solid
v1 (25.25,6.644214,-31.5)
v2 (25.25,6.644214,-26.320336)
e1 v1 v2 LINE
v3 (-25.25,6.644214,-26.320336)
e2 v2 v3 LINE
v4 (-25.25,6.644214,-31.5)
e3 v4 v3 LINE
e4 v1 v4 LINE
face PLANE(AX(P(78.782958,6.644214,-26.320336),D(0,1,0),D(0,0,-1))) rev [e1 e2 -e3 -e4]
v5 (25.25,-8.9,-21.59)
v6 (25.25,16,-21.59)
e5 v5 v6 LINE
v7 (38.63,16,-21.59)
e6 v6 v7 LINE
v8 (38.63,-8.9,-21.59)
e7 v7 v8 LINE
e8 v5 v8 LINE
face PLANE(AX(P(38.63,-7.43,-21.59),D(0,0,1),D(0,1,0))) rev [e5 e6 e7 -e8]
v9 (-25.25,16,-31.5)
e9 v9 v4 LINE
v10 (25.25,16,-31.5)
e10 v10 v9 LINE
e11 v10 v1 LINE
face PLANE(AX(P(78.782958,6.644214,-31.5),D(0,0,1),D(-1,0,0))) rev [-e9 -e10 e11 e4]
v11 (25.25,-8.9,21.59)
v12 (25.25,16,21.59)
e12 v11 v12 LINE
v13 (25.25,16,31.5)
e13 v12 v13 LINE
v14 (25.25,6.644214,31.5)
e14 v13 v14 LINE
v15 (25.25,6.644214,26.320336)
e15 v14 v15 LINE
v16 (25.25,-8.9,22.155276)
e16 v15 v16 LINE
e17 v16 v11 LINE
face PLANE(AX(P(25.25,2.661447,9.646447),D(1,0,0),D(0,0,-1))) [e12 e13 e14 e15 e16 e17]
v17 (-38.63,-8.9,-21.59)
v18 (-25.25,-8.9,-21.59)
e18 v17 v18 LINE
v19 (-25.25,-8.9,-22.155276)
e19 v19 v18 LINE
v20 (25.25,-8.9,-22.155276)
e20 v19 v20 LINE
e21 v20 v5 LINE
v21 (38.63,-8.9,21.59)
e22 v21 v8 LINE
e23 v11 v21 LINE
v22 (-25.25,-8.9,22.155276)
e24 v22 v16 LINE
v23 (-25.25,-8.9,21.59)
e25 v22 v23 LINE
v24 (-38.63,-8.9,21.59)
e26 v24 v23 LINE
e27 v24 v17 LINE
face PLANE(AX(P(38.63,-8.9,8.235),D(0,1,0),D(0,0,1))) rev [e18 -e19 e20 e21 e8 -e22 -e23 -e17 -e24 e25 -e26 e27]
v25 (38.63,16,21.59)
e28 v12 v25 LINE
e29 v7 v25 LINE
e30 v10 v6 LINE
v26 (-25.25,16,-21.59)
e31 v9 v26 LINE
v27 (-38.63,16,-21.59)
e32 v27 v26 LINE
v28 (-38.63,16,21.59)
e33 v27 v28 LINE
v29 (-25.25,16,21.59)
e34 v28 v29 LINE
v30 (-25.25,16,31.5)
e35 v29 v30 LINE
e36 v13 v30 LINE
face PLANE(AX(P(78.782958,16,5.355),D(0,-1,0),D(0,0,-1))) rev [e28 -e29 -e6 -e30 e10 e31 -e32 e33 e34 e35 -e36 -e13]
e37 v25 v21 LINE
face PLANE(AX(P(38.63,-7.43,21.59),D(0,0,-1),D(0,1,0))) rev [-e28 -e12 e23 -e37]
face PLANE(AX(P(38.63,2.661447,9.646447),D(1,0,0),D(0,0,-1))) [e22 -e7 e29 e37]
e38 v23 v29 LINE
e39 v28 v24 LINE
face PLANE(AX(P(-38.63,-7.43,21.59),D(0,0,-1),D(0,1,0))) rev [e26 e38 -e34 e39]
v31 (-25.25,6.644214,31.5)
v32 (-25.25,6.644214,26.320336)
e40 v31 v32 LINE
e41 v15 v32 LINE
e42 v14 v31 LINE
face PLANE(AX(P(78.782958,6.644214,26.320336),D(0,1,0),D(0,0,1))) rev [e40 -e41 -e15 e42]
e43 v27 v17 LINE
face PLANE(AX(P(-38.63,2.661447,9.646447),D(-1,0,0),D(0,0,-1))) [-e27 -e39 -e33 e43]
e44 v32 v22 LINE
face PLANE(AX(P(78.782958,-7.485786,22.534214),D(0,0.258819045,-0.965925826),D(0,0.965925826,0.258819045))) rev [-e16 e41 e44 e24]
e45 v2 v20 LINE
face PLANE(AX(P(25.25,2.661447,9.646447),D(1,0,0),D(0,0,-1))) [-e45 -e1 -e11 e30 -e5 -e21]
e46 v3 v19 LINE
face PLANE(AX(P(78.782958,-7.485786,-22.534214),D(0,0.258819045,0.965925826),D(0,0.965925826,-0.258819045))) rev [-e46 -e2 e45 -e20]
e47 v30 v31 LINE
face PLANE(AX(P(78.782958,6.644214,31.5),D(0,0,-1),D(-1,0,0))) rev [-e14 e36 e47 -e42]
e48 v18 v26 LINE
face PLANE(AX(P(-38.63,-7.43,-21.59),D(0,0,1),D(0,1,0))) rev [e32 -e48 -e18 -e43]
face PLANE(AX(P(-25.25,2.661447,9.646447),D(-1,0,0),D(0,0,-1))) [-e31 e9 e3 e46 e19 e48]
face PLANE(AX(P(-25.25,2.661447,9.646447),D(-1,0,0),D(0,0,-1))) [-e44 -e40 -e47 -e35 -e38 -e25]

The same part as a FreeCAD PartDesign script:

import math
import FreeCAD as App
import Part
import Sketcher
Q = App.Units.Quantity


def add_polygon(sketch, points):
    """Adds a closed chain of lines whose ends are joined by coincident constraints."""
    first, n = sketch.GeometryCount, len(points)
    for a, b in zip(points, points[1:] + points[:1]):
        sketch.addGeometry(Part.LineSegment(App.Vector(*a, 0), App.Vector(*b, 0)), False)
    for i in range(n):
        sketch.addConstraint(Sketcher.Constraint("Coincident", first + i, 2, first + (i + 1) % n, 1))

doc = App.newDocument("Part")
body = doc.addObject("PartDesign::Body", "Body")

sketch1 = body.newObject("Sketcher::SketchObject", "Sketch")
sketch1.AttachmentSupport = (doc.getObject("YZ_Plane"), [""])
sketch1.MapMode = "FlatFace"
sketch1.addGeometry([
    Part.LineSegment(App.Vector(-8.9, 20.1, 0), App.Vector(-8.9, 8.2, 0)),
    Part.LineSegment(App.Vector(-8.9, 8.2, 0), App.Vector(-7.2, 6.5, 0)),
    Part.LineSegment(App.Vector(-7.2, 6.5, 0), App.Vector(-4.2, 6.5, 0)),
    Part.LineSegment(App.Vector(-4.2, 6.5, 0), App.Vector(-2.7, 8, 0)),
    Part.ArcOfCircle(Part.Circle(App.Vector(-2.7, 9.6, 0), App.Vector(0, 0, 1), 1.6), math.radians(-90), math.radians(0)),
    Part.LineSegment(App.Vector(-1, 9.6, 0), App.Vector(-0.7, 10, 0)),
    Part.LineSegment(App.Vector(-0.7, 10, 0), App.Vector(0.7, 10, 0)),
    Part.LineSegment(App.Vector(0.7, 10, 0), App.Vector(1, 9.6, 0)),
    Part.ArcOfCircle(Part.Circle(App.Vector(2.7, 9.6, 0), App.Vector(0, 0, 1), 1.6), math.radians(-180), math.radians(-90)),
    Part.LineSegment(App.Vector(2.7, 8, 0), App.Vector(3, 7.7, 0)),
    Part.LineSegment(App.Vector(3, 7.7, 0), App.Vector(3, 0, 0)),
    Part.LineSegment(App.Vector(3, 0, 0), App.Vector(15.5, 0, 0)),
    Part.LineSegment(App.Vector(15.5, 0, 0), App.Vector(15.5, 20.1, 0)),
    Part.LineSegment(App.Vector(15.5, 20.1, 0), App.Vector(14, 21.6, 0)),
    Part.LineSegment(App.Vector(14, 21.6, 0), App.Vector(-7.4, 21.6, 0)),
    Part.LineSegment(App.Vector(-7.4, 21.6, 0), App.Vector(-8.9, 20.1, 0)),
], False)
sketch1.addConstraint([
    Sketcher.Constraint("Coincident", 0, 2, 1, 1),
    Sketcher.Constraint("Coincident", 1, 2, 2, 1),
    Sketcher.Constraint("Coincident", 2, 2, 3, 1),
    Sketcher.Constraint("Coincident", 3, 2, 4, 1),
    Sketcher.Constraint("Coincident", 4, 2, 5, 1),
    Sketcher.Constraint("Coincident", 5, 2, 6, 1),
    Sketcher.Constraint("Coincident", 6, 2, 7, 1),
    Sketcher.Constraint("Coincident", 7, 2, 8, 1),
    Sketcher.Constraint("Coincident", 8, 2, 9, 1),
    Sketcher.Constraint("Coincident", 9, 2, 10, 1),
    Sketcher.Constraint("Coincident", 10, 2, 11, 1),
    Sketcher.Constraint("Coincident", 11, 2, 12, 1),
    Sketcher.Constraint("Coincident", 12, 2, 13, 1),
    Sketcher.Constraint("Coincident", 13, 2, 14, 1),
    Sketcher.Constraint("Coincident", 14, 2, 15, 1),
    Sketcher.Constraint("Coincident", 15, 2, 0, 1),
    Sketcher.Constraint("Vertical", 0),
    Sketcher.Constraint("Horizontal", 2),
    Sketcher.Constraint("Horizontal", 6),
    Sketcher.Constraint("Vertical", 10),
    Sketcher.Constraint("Horizontal", 11),
    Sketcher.Constraint("Vertical", 12),
    Sketcher.Constraint("Horizontal", 14),
    Sketcher.Constraint("Equal", 4, 8),
    Sketcher.Constraint("Symmetric", 4, 3, 8, 3, -2),
    Sketcher.Constraint("PointOnObject", 10, 2, -1),
    Sketcher.Constraint("Perpendicular", 1, 3),
    Sketcher.Constraint("Parallel", 3, 5),
    Sketcher.Constraint("Perpendicular", 5, 7),
    Sketcher.Constraint("Parallel", 7, 9),
    Sketcher.Constraint("Parallel", 9, 13),
    Sketcher.Constraint("Perpendicular", 13, 15),
    Sketcher.Constraint("Horizontal", 8, 3, 4, 2),
    Sketcher.Constraint("Horizontal", 4, 2, 7, 2),
    Sketcher.Constraint("Horizontal", 12, 2, 15, 2),
    Sketcher.Constraint("Vertical", 4, 3, 3, 2),
    Sketcher.Constraint("Equal", 5, 7),
    Sketcher.Constraint("Equal", 7, 9),
    Sketcher.Constraint("DistanceX", 2, 1, 2, 2, Q("3 mm")),
    Sketcher.Constraint("DistanceY", -1, 1, 5, 2, Q("10 mm")),
    Sketcher.Constraint("Distance", 5, Q("0.5 mm")),
    Sketcher.Constraint("DistanceX", 6, 1, 6, 2, Q("1.33 mm")),
    Sketcher.Constraint("DistanceX", 14, 2, 14, 1, Q("21.46 mm")),
    Sketcher.Constraint("DistanceY", 10, 2, 10, 1, Q("7.65 mm")),
    Sketcher.Constraint("DistanceY", 12, 1, 12, 2, Q("20.12 mm")),
    Sketcher.Constraint("DistanceX", 0, 2, -1, 1, Q("8.9 mm")),
    Sketcher.Constraint("DistanceY", -1, 1, 1, 2, Q("6.5 mm")),
    Sketcher.Constraint("DistanceX", -1, 1, 11, 2, Q("15.5 mm")),
    Sketcher.Constraint("DistanceX", 11, 1, 11, 2, Q("12.485 mm")),
])
pad1 = body.newObject("PartDesign::Pad", "Pad")
pad1.Profile = sketch1
pad1.Length = 38.63

sketch2 = body.newObject("Sketcher::SketchObject", "Sketch001")
sketch2.AttachmentSupport = (doc.getObject("YZ_Plane"), [""])
sketch2.MapMode = "FlatFace"
add_polygon(sketch2, [(-8.9, 21.12), (-8.9, 20.12), (-7.43, 21.59), (14.03, 21.59), (15.5, 20.12), (15.5, 0), (16, 0), (16, 5.36), (15.6, 5.36), (15.6, 20.86), (16, 20.86), (16, 31.5), (6.64, 31.5), (6.64, 26.32), (-7.49, 22.53)])
sketch2.addConstraint([
    Sketcher.Constraint("Vertical", 0),
    Sketcher.Constraint("Horizontal", 2),
    Sketcher.Constraint("Vertical", 4),
    Sketcher.Constraint("Horizontal", 5),
    Sketcher.Constraint("Vertical", 6),
    Sketcher.Constraint("Horizontal", 7),
    Sketcher.Constraint("Vertical", 8),
    Sketcher.Constraint("Horizontal", 9),
    Sketcher.Constraint("Vertical", 10),
    Sketcher.Constraint("Horizontal", 11),
    Sketcher.Constraint("Vertical", 12),
    Sketcher.Constraint("PointOnObject", 4, 2, -1),
    Sketcher.Constraint("Perpendicular", 1, 3),
    Sketcher.Constraint("Perpendicular", 3, 14),
    Sketcher.Constraint("Horizontal", 0, 2, 3, 2),
    Sketcher.Constraint("Vertical", 6, 2, 9, 2),
    Sketcher.Constraint("Equal", 1, 3),
    Sketcher.Constraint("DistanceY", 0, 2, 0, 1, Q("1 mm")),
    Sketcher.Constraint("Angle", 13, Q("-165 deg")),
    Sketcher.Constraint("Distance", 14, Q("2 mm")),
    Sketcher.Constraint("DistanceX", 5, 1, 5, 2, Q("0.5 mm")),
    Sketcher.Constraint("DistanceX", 7, 2, 7, 1, Q("0.4 mm")),
    Sketcher.Constraint("DistanceY", 8, 1, 8, 2, Q("15.5 mm")),
    Sketcher.Constraint("DistanceX", -1, 1, 5, 2, Q("16 mm")),
    Sketcher.Constraint("DistanceX", 2, 1, 2, 2, Q("21.46 mm")),
    Sketcher.Constraint("DistanceY", 4, 2, 4, 1, Q("20.12 mm")),
    Sketcher.Constraint("DistanceX", 0, 2, -1, 1, Q("8.9 mm")),
    Sketcher.Constraint("DistanceY", -1, 1, 10, 2, Q("31.5 mm")),
    Sketcher.Constraint("DistanceY", 6, 1, 6, 2, Q("5.355 mm")),
    Sketcher.Constraint("DistanceX", 13, 2, 12, 2, Q("14.13 mm")),
])
pad2 = body.newObject("PartDesign::Pad", "Pad001")
pad2.Profile = sketch2
pad2.Length = 25.25
body2 = doc.addObject("PartDesign::Body", "Body001")
doc.recompute()

body2.BaseFeature = body
doc.recompute()

mirroring = doc.addObject("Part::Mirroring", "Mirroring")
mirroring.Source = body
mirroring.Base = App.Vector(0, 0, 0)
mirroring.Normal = App.Vector(0, 0, 1)
body3 = doc.addObject("PartDesign::Body", "Body002")
body3.BaseFeature = mirroring
boolean = body2.newObject("PartDesign::Boolean", "Boolean")
boolean.Type = "Fuse"
boolean.addObjects([body3])
doc.recompute()
body4 = doc.addObject("PartDesign::Body", "Body003")
doc.recompute()

body4.BaseFeature = body2
doc.recompute()

mirroring2 = doc.addObject("Part::Mirroring", "Mirroring001")
mirroring2.Source = body2
mirroring2.Base = App.Vector(0, 0, 0)
mirroring2.Normal = App.Vector(1, 0, 0)
body5 = doc.addObject("PartDesign::Body", "Body004")
body5.BaseFeature = mirroring2
boolean2 = body4.newObject("PartDesign::Boolean", "Boolean001")
boolean2.Type = "Fuse"
boolean2.addObjects([body5])
doc.recompute()

sketch3 = body4.newObject("Sketcher::SketchObject", "Sketch002")
sketch3.AttachmentSupport = (doc.getObject("YZ_Plane003"), [""])
sketch3.MapMode = "FlatFace"
sketch3.AttachmentOffset = App.Placement(App.Vector(0, 0, 38.63), App.Rotation())
add_polygon(sketch3, [(9, 13), (-9, 13), (-9, -13), (9, -13)])
sketch3.addConstraint([
    Sketcher.Constraint("Horizontal", 0),
    Sketcher.Constraint("Vertical", 1),
    Sketcher.Constraint("Horizontal", 2),
    Sketcher.Constraint("Vertical", 3),
    Sketcher.Constraint("DistanceX", 0, 2, -1, 1, Q("8.9 mm")),
    Sketcher.Constraint("DistanceY", 1, 2, 1, 1, Q("26.671301 mm")),
    Sketcher.Constraint("DistanceX", 0, 2, 0, 1, Q("17.817336 mm")),
    Sketcher.Constraint("DistanceY", -1, 1, 0, 2, Q("13.260478 mm")),
])
pad3 = body4.newObject("PartDesign::Pad", "Pad002")
pad3.Profile = sketch3
pad3.Length = 77.26
pad3.Reversed = True

sketch4 = body4.newObject("Sketcher::SketchObject", "Sketch003")
sketch4.AttachmentSupport = (doc.getObject("YZ_Plane003"), [""])
sketch4.MapMode = "FlatFace"
sketch4.AttachmentOffset = App.Placement(App.Vector(0, 0, 25.25), App.Rotation())
add_polygon(sketch4, [(16, -32), (16, 32), (7, 32), (7, 26), (-9, 22), (-9, -22), (7, -26), (7, -32)])
sketch4.addConstraint([
    Sketcher.Constraint("Vertical", 0),
    Sketcher.Constraint("Horizontal", 1),
    Sketcher.Constraint("Vertical", 2),
    Sketcher.Constraint("Vertical", 4),
    Sketcher.Constraint("Vertical", 6),
    Sketcher.Constraint("Horizontal", 7),
    Sketcher.Constraint("Symmetric", 2, 2, 5, 2, -1),
    Sketcher.Constraint("Equal", 2, 6),
    Sketcher.Constraint("Equal", 3, 5),
    Sketcher.Constraint("DistanceY", 0, 1, 0, 2, Q("63 mm")),
    Sketcher.Constraint("Angle", 3, Q("-165 deg")),
    Sketcher.Constraint("DistanceX", -1, 1, 0, 2, Q("16 mm")),
    Sketcher.Constraint("DistanceX", 3, 2, -1, 1, Q("8.9 mm")),
    Sketcher.Constraint("DistanceX", 1, 2, 1, 1, Q("9.355786 mm")),
    Sketcher.Constraint("DistanceY", 2, 2, 2, 1, Q("5.179664 mm")),
])
pad4 = body4.newObject("PartDesign::Pad", "Pad003")
pad4.Profile = sketch4
pad4.Length = 50.5
pad4.Reversed = True

sketch5 = body4.newObject("Sketcher::SketchObject", "Sketch004")
sketch5.AttachmentSupport = (doc.getObject("YZ_Plane003"), [""])
sketch5.MapMode = "FlatFace"
sketch5.AttachmentOffset = App.Placement(App.Vector(0, 0, 38.63), App.Rotation())
add_polygon(sketch5, [(16, 22), (-9, 22), (-9, -22), (16, -22)])
sketch5.addConstraint([
    Sketcher.Constraint("Horizontal", 0),
    Sketcher.Constraint("Vertical", 1),
    Sketcher.Constraint("Horizontal", 2),
    Sketcher.Constraint("Vertical", 3),
    Sketcher.Constraint("DistanceX", 0, 2, 0, 1, Q("24.9 mm")),
    Sketcher.Constraint("DistanceX", -1, 1, 2, 2, Q("16 mm")),
    Sketcher.Constraint("DistanceY", 1, 2, 1, 1, Q("43.18 mm")),
    Sketcher.Constraint("DistanceY", -1, 1, 0, 2, Q("21.59 mm")),
])
pad5 = body4.newObject("PartDesign::Pad", "Pad004")
pad5.Profile = sketch5
pad5.Length = 77.26
pad5.Reversed = True
mirroring.Visibility = False
mirroring2.Visibility = False

doc.recompute()
